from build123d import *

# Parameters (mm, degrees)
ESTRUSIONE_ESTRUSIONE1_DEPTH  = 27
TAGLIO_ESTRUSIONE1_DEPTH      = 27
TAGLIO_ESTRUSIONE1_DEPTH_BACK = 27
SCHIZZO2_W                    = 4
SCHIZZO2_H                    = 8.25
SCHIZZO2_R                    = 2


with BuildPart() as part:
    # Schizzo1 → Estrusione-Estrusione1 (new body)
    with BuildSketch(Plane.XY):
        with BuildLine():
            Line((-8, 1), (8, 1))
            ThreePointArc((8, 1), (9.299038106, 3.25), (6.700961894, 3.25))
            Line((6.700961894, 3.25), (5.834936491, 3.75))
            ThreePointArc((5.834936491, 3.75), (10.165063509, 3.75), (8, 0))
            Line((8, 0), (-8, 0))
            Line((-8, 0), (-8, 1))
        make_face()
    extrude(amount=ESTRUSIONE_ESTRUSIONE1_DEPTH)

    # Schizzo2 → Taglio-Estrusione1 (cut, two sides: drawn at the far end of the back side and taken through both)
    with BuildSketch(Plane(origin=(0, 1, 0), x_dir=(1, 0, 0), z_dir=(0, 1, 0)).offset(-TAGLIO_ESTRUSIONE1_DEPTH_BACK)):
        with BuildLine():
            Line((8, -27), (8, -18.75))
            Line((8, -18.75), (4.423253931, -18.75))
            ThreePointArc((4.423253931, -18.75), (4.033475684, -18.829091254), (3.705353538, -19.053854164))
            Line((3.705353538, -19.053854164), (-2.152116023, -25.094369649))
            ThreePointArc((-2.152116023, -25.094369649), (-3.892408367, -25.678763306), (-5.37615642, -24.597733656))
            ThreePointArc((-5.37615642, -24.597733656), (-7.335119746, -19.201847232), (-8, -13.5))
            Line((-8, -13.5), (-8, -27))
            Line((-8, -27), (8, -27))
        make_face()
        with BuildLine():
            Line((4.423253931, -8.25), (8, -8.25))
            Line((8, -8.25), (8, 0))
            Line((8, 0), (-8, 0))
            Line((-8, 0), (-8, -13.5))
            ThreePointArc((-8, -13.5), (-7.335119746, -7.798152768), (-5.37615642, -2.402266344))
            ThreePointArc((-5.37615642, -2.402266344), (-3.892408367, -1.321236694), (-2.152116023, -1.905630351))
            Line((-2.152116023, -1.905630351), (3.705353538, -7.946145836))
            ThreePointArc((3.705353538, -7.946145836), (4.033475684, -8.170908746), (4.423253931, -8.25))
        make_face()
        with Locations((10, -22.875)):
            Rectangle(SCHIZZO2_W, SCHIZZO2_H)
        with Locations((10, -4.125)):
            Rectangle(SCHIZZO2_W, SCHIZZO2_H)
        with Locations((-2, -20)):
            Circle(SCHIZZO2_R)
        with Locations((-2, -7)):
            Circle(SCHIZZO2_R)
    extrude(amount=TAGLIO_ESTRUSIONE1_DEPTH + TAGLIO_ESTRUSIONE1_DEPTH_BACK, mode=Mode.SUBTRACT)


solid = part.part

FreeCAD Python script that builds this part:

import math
import FreeCAD as App
import Part
import Sketcher
from FreeCAD import Vector
Q = App.Units.Quantity

doc = App.newDocument("Part")
params = doc.addObject("Spreadsheet::Sheet", "Params")
for row, (alias, value) in enumerate([
    ("sketch1_radius", "2.5 mm"),
    ("sketch1_radius2", "1.5 mm"),
    ("sketch1_width", "16 mm"),
    ("pad1_length", "27 mm"),
    ("sketch2_diameter", "4 mm"),
    ("sketch2_radius", "1 mm"),
    ("sketch2_width", "20 mm"),
    ("sketch2_height", "13.5 mm"),
    ("sketch2_height2", "8.25 mm"),
], start=1):
    params.set(f"A{row}", alias)
    params.set(f"B{row}", "=" + value)
    params.setAlias(f"B{row}", alias)

body = doc.addObject("PartDesign::Body", "Body")

sketch1 = body.newObject("Sketcher::SketchObject", "Sketch")
sketch1.AttachmentSupport = (doc.getObject("XY_Plane"), [""])
sketch1.MapMode = "FlatFace"
sketch1.addGeometry([
    Part.LineSegment(Vector(8, 1, 0), Vector(-8, 1, 0)),
    Part.LineSegment(Vector(-8, 1, 0), Vector(-8, 0, 0)),
    Part.LineSegment(Vector(-8, 0, 0), Vector(8, 0, 0)),
    Part.ArcOfCircle(Part.Circle(Vector(8, 2.5, 0), Vector(0, 0, 1), 2.5), math.radians(-90), math.radians(150)),
    Part.LineSegment(Vector(5.834936, 3.75, 0), Vector(6.700962, 3.25, 0)),
    Part.ArcOfCircle(Part.Circle(Vector(8, 2.5, 0), Vector(0, 0, 1), 1.5), math.radians(-90), math.radians(150)),
], False)
sketch1.addConstraint([
    Sketcher.Constraint("Coincident", 0, 2, 1, 1),
    Sketcher.Constraint("Coincident", 1, 2, 2, 1),
    Sketcher.Constraint("Tangent", 2, 2, 3, 1),
    Sketcher.Constraint("Coincident", 3, 2, 4, 1),
    Sketcher.Constraint("Coincident", 4, 2, 5, 2),
    Sketcher.Constraint("Tangent", 5, 1, 0, 1),
    Sketcher.Constraint("Horizontal", 0),
    Sketcher.Constraint("Vertical", 1),
    Sketcher.Constraint("Horizontal", 2),
    Sketcher.Constraint("Coincident", 5, 3, 3, 3),
    Sketcher.Constraint("Symmetric", 1, 2, 2, 2, -1, 1),
    Sketcher.Constraint("Radius", 3, 2.5),
    Sketcher.Constraint("Radius", 5, 1.5),
    Sketcher.Constraint("DistanceX", 0, 2, 0, 1, 16.0),
    Sketcher.Constraint("Angle", 4, Q("-30 deg")),
    Sketcher.Constraint("DistanceY", -1, 1, 3, 2, 3.75),
])
sketch1.setExpression("Constraints[11]", "Params.sketch1_radius")
sketch1.setExpression("Constraints[12]", "Params.sketch1_radius2")
sketch1.setExpression("Constraints[13]", "Params.sketch1_width")
pad1 = body.newObject("PartDesign::Pad", "Pad")
pad1.Profile = sketch1
pad1.setExpression("Length", "Params.pad1_length")

sketch2 = body.newObject("Sketcher::SketchObject", "Sketch001")
sketch2.AttachmentSupport = (doc.getObject("XZ_Plane"), [""])
sketch2.MapMode = "FlatFace"
sketch2.AttachmentOffset = App.Placement(Vector(0, 0, -1), App.Rotation())
sketch2.addGeometry([
    Part.ArcOfCircle(Part.Circle(Vector(4.423254, 19.75, 0), Vector(0, 0, 1), 1), math.radians(-135.881404), math.radians(-90)),
    Part.LineSegment(Vector(3.705354, 19.053854, 0), Vector(-2.152116, 25.09437, 0)),
    Part.ArcOfCircle(Part.Circle(Vector(-3.587917, 23.702078, 0), Vector(0, 0, 1), 2), math.radians(44.118596), math.radians(153.395594)),
    Part.ArcOfCircle(Part.Circle(Vector(16.78125, 13.5, 0), Vector(0, 0, 1), 24.78125), math.radians(153.395594), math.radians(180)),
    Part.LineSegment(Vector(-8, 13.5, 0), Vector(-8, 27, 0)),
    Part.LineSegment(Vector(-8, 27, 0), Vector(12, 27, 0)),
    Part.LineSegment(Vector(12, 27, 0), Vector(12, 18.75, 0)),
    Part.LineSegment(Vector(12, 18.75, 0), Vector(4.423254, 18.75, 0)),
    Part.LineSegment(Vector(4.423254, 8.25, 0), Vector(12, 8.25, 0)),
    Part.LineSegment(Vector(12, 8.25, 0), Vector(12, 0, 0)),
    Part.LineSegment(Vector(12, 0, 0), Vector(-8, 0, 0)),
    Part.LineSegment(Vector(-8, 0, 0), Vector(-8, 13.5, 0)),
    Part.ArcOfCircle(Part.Circle(Vector(16.78125, 13.5, 0), Vector(0, 0, 1), 24.78125), math.radians(180), math.radians(206.604406)),
    Part.ArcOfCircle(Part.Circle(Vector(-3.587917, 3.297922, 0), Vector(0, 0, 1), 2), math.radians(-153.395594), math.radians(-44.118596)),
    Part.LineSegment(Vector(-2.152116, 1.90563, 0), Vector(3.705354, 7.946146, 0)),
    Part.ArcOfCircle(Part.Circle(Vector(4.423254, 7.25, 0), Vector(0, 0, 1), 1), math.radians(90), math.radians(135.881404)),
    Part.Circle(Vector(-2, 20, 0), Vector(0, 0, 1), 2),
    Part.Circle(Vector(-2, 7, 0), Vector(0, 0, 1), 2),
], False)
sketch2.addConstraint([
    Sketcher.Constraint("Tangent", 0, 1, 1, 1),
    Sketcher.Constraint("Tangent", 1, 2, 2, 1),
    Sketcher.Constraint("Tangent", 2, 2, 3, 1),
    Sketcher.Constraint("Tangent", 3, 2, 4, 1),
    Sketcher.Constraint("Coincident", 4, 2, 5, 1),
    Sketcher.Constraint("Coincident", 5, 2, 6, 1),
    Sketcher.Constraint("Coincident", 6, 2, 7, 1),
    Sketcher.Constraint("Tangent", 7, 2, 0, 2),
    Sketcher.Constraint("Coincident", 8, 2, 9, 1),
    Sketcher.Constraint("Coincident", 9, 2, 10, 1),
    Sketcher.Constraint("Coincident", 10, 2, 11, 1),
    Sketcher.Constraint("Tangent", 11, 2, 12, 1),
    Sketcher.Constraint("Tangent", 12, 2, 13, 1),
    Sketcher.Constraint("Tangent", 13, 2, 14, 1),
    Sketcher.Constraint("Tangent", 14, 2, 15, 2),
    Sketcher.Constraint("Tangent", 15, 1, 8, 1),
    Sketcher.Constraint("Vertical", 4),
    Sketcher.Constraint("Horizontal", 5),
    Sketcher.Constraint("Vertical", 6),
    Sketcher.Constraint("Horizontal", 7),
    Sketcher.Constraint("Horizontal", 8),
    Sketcher.Constraint("Vertical", 9),
    Sketcher.Constraint("Horizontal", 10),
    Sketcher.Constraint("Vertical", 11),
    Sketcher.Constraint("Coincident", 12, 3, 3, 3),
    Sketcher.Constraint("Equal", 3, 12),
    Sketcher.Constraint("Equal", 2, 13),
    Sketcher.Constraint("Equal", 0, 15),
    Sketcher.Constraint("Equal", 13, 16),
    Sketcher.Constraint("Equal", 16, 17),
    Sketcher.Constraint("PointOnObject", 9, 2, -1),
    Sketcher.Constraint("Vertical", 2, 3, 13, 3),
    Sketcher.Constraint("Vertical", 0, 3, 15, 3),
    Sketcher.Constraint("Vertical", 16, 3, 17, 3),
    Sketcher.Constraint("Vertical", 6, 2, 8, 2),
    Sketcher.Constraint("Vertical", 1, 2, 13, 2),
    Sketcher.Constraint("Equal", 6, 9),
    Sketcher.Constraint("Diameter", 16, 4.0),
    Sketcher.Constraint("Radius", 0, 1.0),
    Sketcher.Constraint("DistanceX", 5, 1, 5, 2, 20.0),
    Sketcher.Constraint("DistanceY", 4, 1, 4, 2, 13.5),
    Sketcher.Constraint("DistanceX", 16, 3, -1, 1, 2.0),
    Sketcher.Constraint("DistanceY", -1, 1, 16, 3, 20.0),
    Sketcher.Constraint("DistanceY", -1, 1, 17, 3, 7.0),
    Sketcher.Constraint("DistanceX", 3, 2, -1, 1, 8.0),
    Sketcher.Constraint("DistanceY", 6, 2, 6, 1, 8.25),
    Sketcher.Constraint("Radius", 3, 24.78125),
    Sketcher.Constraint("DistanceX", 0, 1, 0, 3, 0.7179),
    Sketcher.Constraint("Distance", 1, 8.414141),
])
sketch2.setExpression("Constraints[37]", "Params.sketch2_diameter")
sketch2.setExpression("Constraints[38]", "Params.sketch2_radius")
sketch2.setExpression("Constraints[39]", "Params.sketch2_width")
sketch2.setExpression("Constraints[40]", "Params.sketch2_height")
sketch2.setExpression("Constraints[45]", "Params.sketch2_height2")
pocket1 = body.newObject("PartDesign::Pocket", "Pocket")
pocket1.Profile = sketch2
pocket1.Type = "ThroughAll"
pocket1.Midplane = True

doc.recompute()
